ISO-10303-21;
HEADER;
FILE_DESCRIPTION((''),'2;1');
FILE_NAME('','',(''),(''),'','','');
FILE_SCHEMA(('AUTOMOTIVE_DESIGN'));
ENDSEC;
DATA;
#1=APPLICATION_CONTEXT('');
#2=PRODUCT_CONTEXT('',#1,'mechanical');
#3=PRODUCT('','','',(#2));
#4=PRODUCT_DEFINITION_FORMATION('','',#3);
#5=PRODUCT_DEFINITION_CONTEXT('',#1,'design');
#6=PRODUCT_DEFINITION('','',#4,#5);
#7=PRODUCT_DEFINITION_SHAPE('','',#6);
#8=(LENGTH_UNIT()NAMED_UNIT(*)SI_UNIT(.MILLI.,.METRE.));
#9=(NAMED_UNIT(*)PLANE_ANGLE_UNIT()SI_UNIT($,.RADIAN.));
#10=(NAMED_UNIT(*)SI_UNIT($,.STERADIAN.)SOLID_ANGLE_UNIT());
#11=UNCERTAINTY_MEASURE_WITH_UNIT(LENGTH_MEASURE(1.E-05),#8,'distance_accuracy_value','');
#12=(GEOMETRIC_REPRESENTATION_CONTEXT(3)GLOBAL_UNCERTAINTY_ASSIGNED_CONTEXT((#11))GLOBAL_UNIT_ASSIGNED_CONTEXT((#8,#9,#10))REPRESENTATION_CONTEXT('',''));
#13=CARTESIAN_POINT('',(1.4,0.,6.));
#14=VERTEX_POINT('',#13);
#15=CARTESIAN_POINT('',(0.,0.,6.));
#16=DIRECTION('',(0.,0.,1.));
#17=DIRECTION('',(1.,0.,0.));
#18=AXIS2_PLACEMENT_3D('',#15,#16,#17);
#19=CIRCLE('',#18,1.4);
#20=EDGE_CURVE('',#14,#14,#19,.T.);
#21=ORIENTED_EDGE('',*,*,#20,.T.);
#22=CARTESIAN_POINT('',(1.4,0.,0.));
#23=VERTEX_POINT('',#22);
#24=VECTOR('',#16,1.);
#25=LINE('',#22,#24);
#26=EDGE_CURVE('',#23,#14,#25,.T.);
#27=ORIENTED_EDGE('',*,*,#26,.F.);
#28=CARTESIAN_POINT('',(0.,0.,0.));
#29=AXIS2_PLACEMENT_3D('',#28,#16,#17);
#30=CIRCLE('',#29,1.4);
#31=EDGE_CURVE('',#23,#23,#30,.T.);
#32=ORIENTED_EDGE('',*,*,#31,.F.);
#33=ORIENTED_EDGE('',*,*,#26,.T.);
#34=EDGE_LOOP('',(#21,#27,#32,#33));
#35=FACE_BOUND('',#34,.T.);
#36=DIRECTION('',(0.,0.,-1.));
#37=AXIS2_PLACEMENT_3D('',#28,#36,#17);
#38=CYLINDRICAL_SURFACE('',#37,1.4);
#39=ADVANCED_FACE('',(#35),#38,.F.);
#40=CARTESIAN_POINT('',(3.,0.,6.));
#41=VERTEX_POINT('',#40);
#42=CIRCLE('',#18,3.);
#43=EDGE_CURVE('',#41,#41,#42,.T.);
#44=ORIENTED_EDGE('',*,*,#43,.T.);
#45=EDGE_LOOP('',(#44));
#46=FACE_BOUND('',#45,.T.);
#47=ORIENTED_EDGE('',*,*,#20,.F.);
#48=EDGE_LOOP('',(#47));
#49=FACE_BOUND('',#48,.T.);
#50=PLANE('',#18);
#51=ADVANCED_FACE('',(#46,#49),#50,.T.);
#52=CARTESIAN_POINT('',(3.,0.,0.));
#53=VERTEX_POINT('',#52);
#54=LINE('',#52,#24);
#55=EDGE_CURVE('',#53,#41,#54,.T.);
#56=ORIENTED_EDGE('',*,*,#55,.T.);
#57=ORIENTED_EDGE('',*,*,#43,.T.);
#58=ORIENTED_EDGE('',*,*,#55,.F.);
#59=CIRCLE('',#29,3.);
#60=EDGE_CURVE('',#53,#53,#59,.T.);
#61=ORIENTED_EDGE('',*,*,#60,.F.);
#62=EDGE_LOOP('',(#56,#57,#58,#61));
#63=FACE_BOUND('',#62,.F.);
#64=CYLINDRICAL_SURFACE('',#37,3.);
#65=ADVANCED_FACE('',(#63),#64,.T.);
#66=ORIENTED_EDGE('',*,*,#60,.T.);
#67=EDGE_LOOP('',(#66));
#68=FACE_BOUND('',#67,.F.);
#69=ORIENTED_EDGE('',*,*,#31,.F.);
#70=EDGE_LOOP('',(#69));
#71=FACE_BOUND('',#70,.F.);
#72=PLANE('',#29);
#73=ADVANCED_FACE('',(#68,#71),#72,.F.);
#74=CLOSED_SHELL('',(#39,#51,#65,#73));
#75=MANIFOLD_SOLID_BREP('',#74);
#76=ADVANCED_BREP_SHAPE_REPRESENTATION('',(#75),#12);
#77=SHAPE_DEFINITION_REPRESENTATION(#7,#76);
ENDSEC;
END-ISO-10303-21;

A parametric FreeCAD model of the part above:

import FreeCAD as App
import Part
import Sketcher

doc = App.newDocument("Part")
body = doc.addObject("PartDesign::Body", "Body")

# Sketch on XY plane
sketch1 = body.newObject("Sketcher::SketchObject", "Sketch")
sketch1.AttachmentSupport = (doc.getObject("XY_Plane"), [""])
sketch1.MapMode = "FlatFace"
sketch1.addGeometry([
    Part.Circle(App.Vector(0, 0, 0), App.Vector(0, 0, 1), 3),
    Part.Circle(App.Vector(0, 0, 0), App.Vector(0, 0, 1), 1.4),
], False)
sketch1.addConstraint([
    Sketcher.Constraint("Coincident", 0, 3, -1, 1),
    Sketcher.Constraint("Coincident", 1, 3, -1, 1),
    Sketcher.Constraint("Diameter", 0, 6.0),
    Sketcher.Constraint("Diameter", 1, 2.8),
])
pad1 = body.newObject("PartDesign::Pad", "Pad")
pad1.Profile = sketch1
pad1.Length = 6

doc.recompute()
